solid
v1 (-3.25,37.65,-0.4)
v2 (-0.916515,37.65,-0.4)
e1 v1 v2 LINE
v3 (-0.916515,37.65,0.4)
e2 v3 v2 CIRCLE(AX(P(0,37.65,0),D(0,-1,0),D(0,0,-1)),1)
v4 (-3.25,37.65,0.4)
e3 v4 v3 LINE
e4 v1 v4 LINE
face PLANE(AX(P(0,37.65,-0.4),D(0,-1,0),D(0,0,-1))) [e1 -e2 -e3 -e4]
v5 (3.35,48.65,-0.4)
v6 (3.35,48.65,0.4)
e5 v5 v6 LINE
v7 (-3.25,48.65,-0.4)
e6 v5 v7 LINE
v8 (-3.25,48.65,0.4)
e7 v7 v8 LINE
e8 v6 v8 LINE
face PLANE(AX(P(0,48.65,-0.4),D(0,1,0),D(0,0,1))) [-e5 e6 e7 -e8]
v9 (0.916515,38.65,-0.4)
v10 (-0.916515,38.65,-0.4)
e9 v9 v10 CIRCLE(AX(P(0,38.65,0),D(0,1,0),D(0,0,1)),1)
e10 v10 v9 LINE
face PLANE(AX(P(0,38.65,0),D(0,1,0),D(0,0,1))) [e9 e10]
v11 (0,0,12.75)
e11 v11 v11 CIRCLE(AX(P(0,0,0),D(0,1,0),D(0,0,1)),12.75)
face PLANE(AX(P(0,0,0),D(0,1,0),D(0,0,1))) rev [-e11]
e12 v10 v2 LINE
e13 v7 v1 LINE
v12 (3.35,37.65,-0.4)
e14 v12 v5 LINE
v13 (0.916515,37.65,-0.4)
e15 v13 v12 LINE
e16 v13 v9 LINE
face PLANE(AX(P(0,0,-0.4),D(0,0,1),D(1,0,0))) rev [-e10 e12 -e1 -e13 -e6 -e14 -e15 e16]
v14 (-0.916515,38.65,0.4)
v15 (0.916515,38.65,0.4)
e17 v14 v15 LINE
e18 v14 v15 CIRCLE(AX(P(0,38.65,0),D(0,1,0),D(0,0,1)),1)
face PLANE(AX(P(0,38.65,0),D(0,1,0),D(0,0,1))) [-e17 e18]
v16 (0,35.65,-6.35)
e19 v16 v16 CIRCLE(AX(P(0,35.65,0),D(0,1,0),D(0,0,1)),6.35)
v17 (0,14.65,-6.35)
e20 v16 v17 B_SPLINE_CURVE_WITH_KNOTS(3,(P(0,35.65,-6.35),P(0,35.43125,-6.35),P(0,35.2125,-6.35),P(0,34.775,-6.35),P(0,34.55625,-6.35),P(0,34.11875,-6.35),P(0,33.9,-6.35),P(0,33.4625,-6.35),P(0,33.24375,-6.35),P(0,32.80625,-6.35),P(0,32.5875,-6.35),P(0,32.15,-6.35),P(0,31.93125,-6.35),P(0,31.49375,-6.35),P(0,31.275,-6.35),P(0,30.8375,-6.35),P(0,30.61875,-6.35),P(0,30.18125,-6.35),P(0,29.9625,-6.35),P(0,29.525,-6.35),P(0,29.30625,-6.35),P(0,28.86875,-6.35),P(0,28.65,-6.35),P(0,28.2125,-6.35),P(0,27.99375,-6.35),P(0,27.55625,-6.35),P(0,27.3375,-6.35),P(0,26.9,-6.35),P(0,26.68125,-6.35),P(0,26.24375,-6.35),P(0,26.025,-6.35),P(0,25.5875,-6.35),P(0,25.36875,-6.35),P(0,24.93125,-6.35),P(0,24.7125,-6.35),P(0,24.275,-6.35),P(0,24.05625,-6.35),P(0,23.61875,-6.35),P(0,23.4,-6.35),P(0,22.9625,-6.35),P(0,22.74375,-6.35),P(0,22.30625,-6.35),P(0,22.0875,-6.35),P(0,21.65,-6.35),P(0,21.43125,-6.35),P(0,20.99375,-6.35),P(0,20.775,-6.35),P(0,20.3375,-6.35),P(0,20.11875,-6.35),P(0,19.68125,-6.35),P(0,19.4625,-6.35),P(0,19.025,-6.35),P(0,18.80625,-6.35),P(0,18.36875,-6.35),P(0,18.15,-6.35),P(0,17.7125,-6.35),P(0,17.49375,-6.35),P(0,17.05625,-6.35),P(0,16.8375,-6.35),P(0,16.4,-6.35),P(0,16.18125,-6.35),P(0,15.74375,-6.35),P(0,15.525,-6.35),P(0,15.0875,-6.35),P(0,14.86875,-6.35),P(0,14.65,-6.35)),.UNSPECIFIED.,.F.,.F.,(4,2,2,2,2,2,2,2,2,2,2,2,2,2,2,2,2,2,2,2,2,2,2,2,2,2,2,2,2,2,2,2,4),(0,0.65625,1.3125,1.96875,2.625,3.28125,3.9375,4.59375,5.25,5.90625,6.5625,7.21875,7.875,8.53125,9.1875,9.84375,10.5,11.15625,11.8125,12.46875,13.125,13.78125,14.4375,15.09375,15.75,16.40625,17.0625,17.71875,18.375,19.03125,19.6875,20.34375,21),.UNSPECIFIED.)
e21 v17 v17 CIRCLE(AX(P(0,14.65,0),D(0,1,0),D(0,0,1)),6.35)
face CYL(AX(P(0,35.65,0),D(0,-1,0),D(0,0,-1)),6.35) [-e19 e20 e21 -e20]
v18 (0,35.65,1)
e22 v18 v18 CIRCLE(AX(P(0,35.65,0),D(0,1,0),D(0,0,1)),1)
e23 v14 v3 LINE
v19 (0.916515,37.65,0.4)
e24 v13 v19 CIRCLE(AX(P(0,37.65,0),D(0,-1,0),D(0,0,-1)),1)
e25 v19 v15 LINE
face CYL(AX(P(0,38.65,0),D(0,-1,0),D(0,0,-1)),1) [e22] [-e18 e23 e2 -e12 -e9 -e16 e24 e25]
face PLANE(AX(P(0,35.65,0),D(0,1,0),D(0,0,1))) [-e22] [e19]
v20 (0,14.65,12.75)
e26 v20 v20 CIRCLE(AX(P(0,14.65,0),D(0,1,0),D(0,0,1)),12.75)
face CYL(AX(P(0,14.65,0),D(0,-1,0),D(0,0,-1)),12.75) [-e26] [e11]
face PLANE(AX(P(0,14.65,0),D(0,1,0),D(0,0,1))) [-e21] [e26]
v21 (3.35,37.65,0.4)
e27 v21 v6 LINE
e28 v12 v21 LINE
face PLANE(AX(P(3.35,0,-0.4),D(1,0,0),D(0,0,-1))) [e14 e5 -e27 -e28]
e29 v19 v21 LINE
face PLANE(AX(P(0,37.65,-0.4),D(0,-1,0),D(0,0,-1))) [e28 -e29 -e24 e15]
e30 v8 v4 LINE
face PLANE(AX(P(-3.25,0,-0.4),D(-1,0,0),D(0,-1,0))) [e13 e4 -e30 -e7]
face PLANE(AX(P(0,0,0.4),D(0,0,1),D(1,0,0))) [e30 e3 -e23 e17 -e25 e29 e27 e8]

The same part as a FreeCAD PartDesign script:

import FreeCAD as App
import Part
import Sketcher

V = App.Vector


def add_polygon(sketch, points):
    """Adds a closed chain of lines whose ends are joined by coincident constraints."""
    first, n = sketch.GeometryCount, len(points)
    for a, b in zip(points, points[1:] + points[:1]):
        sketch.addGeometry(Part.LineSegment(App.Vector(*a, 0), App.Vector(*b, 0)), False)
    for i in range(n):
        sketch.addConstraint(Sketcher.Constraint("Coincident", first + i, 2, first + (i + 1) % n, 1))

doc = App.newDocument("Part")
body = doc.addObject("PartDesign::Body", "Body")

sketch1 = body.newObject("Sketcher::SketchObject", "Sketch")
sketch1.AttachmentSupport = (doc.getObject("XZ_Plane"), [""])
sketch1.MapMode = "FlatFace"
sketch1.addGeometry(Part.Circle(V(0, 0, 0), V(0, 0, 1), 13), False)
sketch1.addConstraint(Sketcher.Constraint("Coincident", 0, 3, -1, 1))
sketch1.addConstraint(Sketcher.Constraint("Diameter", 0, 25.5))
pad1 = body.newObject("PartDesign::Pad", "Pad")
pad1.Profile = sketch1
pad1.Length = 14.65
pad1.Reversed = True

sketch2 = body.newObject("Sketcher::SketchObject", "Sketch001")
sketch2.AttachmentSupport = (doc.getObject("XZ_Plane"), [""])
sketch2.MapMode = "FlatFace"
sketch2.AttachmentOffset = App.Placement(V(0, 0, -14.65), App.Rotation())
sketch2.addGeometry(Part.Circle(V(0, 0, 0), V(0, 0, 1), 6), False)
sketch2.addConstraint(Sketcher.Constraint("Coincident", 0, 3, -1, 1))
sketch2.addConstraint(Sketcher.Constraint("Diameter", 0, 12.7))
pad2 = body.newObject("PartDesign::Pad", "Pad001")
pad2.Profile = sketch2
pad2.Length = 21
pad2.Reversed = True

sketch3 = body.newObject("Sketcher::SketchObject", "Sketch002")
sketch3.AttachmentSupport = (doc.getObject("XZ_Plane"), [""])
sketch3.MapMode = "FlatFace"
sketch3.AttachmentOffset = App.Placement(V(0, 0, -35.65), App.Rotation())
sketch3.addGeometry(Part.Circle(V(0, 0, 0), V(0, 0, 1), 1), False)
sketch3.addConstraint(Sketcher.Constraint("Coincident", 0, 3, -1, 1))
sketch3.addConstraint(Sketcher.Constraint("Diameter", 0, 2.0))
pad3 = body.newObject("PartDesign::Pad", "Pad002")
pad3.Profile = sketch3
pad3.Length = 3
pad3.Reversed = True

sketch4 = body.newObject("Sketcher::SketchObject", "Sketch003")
sketch4.AttachmentSupport = (doc.getObject("XY_Plane"), [""])
sketch4.MapMode = "FlatFace"
add_polygon(sketch4, [(-3, 49), (-3, 38), (3, 38), (3, 49)])
sketch4.addConstraint(Sketcher.Constraint("Vertical", 0))
sketch4.addConstraint(Sketcher.Constraint("Horizontal", 1))
sketch4.addConstraint(Sketcher.Constraint("Vertical", 2))
sketch4.addConstraint(Sketcher.Constraint("Horizontal", 3))
sketch4.addConstraint(Sketcher.Constraint("DistanceY", 0, 2, 0, 1, 11.0))
sketch4.addConstraint(Sketcher.Constraint("DistanceX", 1, 1, 1, 2, 6.6))
sketch4.addConstraint(Sketcher.Constraint("DistanceX", 0, 2, -1, 1, 3.25))
sketch4.addConstraint(Sketcher.Constraint("DistanceY", -1, 1, 0, 2, 37.65))
pad4 = body.newObject("PartDesign::Pad", "Pad003")
pad4.Profile = sketch4
pad4.Type = "TwoLengths"
pad4.Length = 0.4
pad4.Length2 = 0.4

doc.recompute()
